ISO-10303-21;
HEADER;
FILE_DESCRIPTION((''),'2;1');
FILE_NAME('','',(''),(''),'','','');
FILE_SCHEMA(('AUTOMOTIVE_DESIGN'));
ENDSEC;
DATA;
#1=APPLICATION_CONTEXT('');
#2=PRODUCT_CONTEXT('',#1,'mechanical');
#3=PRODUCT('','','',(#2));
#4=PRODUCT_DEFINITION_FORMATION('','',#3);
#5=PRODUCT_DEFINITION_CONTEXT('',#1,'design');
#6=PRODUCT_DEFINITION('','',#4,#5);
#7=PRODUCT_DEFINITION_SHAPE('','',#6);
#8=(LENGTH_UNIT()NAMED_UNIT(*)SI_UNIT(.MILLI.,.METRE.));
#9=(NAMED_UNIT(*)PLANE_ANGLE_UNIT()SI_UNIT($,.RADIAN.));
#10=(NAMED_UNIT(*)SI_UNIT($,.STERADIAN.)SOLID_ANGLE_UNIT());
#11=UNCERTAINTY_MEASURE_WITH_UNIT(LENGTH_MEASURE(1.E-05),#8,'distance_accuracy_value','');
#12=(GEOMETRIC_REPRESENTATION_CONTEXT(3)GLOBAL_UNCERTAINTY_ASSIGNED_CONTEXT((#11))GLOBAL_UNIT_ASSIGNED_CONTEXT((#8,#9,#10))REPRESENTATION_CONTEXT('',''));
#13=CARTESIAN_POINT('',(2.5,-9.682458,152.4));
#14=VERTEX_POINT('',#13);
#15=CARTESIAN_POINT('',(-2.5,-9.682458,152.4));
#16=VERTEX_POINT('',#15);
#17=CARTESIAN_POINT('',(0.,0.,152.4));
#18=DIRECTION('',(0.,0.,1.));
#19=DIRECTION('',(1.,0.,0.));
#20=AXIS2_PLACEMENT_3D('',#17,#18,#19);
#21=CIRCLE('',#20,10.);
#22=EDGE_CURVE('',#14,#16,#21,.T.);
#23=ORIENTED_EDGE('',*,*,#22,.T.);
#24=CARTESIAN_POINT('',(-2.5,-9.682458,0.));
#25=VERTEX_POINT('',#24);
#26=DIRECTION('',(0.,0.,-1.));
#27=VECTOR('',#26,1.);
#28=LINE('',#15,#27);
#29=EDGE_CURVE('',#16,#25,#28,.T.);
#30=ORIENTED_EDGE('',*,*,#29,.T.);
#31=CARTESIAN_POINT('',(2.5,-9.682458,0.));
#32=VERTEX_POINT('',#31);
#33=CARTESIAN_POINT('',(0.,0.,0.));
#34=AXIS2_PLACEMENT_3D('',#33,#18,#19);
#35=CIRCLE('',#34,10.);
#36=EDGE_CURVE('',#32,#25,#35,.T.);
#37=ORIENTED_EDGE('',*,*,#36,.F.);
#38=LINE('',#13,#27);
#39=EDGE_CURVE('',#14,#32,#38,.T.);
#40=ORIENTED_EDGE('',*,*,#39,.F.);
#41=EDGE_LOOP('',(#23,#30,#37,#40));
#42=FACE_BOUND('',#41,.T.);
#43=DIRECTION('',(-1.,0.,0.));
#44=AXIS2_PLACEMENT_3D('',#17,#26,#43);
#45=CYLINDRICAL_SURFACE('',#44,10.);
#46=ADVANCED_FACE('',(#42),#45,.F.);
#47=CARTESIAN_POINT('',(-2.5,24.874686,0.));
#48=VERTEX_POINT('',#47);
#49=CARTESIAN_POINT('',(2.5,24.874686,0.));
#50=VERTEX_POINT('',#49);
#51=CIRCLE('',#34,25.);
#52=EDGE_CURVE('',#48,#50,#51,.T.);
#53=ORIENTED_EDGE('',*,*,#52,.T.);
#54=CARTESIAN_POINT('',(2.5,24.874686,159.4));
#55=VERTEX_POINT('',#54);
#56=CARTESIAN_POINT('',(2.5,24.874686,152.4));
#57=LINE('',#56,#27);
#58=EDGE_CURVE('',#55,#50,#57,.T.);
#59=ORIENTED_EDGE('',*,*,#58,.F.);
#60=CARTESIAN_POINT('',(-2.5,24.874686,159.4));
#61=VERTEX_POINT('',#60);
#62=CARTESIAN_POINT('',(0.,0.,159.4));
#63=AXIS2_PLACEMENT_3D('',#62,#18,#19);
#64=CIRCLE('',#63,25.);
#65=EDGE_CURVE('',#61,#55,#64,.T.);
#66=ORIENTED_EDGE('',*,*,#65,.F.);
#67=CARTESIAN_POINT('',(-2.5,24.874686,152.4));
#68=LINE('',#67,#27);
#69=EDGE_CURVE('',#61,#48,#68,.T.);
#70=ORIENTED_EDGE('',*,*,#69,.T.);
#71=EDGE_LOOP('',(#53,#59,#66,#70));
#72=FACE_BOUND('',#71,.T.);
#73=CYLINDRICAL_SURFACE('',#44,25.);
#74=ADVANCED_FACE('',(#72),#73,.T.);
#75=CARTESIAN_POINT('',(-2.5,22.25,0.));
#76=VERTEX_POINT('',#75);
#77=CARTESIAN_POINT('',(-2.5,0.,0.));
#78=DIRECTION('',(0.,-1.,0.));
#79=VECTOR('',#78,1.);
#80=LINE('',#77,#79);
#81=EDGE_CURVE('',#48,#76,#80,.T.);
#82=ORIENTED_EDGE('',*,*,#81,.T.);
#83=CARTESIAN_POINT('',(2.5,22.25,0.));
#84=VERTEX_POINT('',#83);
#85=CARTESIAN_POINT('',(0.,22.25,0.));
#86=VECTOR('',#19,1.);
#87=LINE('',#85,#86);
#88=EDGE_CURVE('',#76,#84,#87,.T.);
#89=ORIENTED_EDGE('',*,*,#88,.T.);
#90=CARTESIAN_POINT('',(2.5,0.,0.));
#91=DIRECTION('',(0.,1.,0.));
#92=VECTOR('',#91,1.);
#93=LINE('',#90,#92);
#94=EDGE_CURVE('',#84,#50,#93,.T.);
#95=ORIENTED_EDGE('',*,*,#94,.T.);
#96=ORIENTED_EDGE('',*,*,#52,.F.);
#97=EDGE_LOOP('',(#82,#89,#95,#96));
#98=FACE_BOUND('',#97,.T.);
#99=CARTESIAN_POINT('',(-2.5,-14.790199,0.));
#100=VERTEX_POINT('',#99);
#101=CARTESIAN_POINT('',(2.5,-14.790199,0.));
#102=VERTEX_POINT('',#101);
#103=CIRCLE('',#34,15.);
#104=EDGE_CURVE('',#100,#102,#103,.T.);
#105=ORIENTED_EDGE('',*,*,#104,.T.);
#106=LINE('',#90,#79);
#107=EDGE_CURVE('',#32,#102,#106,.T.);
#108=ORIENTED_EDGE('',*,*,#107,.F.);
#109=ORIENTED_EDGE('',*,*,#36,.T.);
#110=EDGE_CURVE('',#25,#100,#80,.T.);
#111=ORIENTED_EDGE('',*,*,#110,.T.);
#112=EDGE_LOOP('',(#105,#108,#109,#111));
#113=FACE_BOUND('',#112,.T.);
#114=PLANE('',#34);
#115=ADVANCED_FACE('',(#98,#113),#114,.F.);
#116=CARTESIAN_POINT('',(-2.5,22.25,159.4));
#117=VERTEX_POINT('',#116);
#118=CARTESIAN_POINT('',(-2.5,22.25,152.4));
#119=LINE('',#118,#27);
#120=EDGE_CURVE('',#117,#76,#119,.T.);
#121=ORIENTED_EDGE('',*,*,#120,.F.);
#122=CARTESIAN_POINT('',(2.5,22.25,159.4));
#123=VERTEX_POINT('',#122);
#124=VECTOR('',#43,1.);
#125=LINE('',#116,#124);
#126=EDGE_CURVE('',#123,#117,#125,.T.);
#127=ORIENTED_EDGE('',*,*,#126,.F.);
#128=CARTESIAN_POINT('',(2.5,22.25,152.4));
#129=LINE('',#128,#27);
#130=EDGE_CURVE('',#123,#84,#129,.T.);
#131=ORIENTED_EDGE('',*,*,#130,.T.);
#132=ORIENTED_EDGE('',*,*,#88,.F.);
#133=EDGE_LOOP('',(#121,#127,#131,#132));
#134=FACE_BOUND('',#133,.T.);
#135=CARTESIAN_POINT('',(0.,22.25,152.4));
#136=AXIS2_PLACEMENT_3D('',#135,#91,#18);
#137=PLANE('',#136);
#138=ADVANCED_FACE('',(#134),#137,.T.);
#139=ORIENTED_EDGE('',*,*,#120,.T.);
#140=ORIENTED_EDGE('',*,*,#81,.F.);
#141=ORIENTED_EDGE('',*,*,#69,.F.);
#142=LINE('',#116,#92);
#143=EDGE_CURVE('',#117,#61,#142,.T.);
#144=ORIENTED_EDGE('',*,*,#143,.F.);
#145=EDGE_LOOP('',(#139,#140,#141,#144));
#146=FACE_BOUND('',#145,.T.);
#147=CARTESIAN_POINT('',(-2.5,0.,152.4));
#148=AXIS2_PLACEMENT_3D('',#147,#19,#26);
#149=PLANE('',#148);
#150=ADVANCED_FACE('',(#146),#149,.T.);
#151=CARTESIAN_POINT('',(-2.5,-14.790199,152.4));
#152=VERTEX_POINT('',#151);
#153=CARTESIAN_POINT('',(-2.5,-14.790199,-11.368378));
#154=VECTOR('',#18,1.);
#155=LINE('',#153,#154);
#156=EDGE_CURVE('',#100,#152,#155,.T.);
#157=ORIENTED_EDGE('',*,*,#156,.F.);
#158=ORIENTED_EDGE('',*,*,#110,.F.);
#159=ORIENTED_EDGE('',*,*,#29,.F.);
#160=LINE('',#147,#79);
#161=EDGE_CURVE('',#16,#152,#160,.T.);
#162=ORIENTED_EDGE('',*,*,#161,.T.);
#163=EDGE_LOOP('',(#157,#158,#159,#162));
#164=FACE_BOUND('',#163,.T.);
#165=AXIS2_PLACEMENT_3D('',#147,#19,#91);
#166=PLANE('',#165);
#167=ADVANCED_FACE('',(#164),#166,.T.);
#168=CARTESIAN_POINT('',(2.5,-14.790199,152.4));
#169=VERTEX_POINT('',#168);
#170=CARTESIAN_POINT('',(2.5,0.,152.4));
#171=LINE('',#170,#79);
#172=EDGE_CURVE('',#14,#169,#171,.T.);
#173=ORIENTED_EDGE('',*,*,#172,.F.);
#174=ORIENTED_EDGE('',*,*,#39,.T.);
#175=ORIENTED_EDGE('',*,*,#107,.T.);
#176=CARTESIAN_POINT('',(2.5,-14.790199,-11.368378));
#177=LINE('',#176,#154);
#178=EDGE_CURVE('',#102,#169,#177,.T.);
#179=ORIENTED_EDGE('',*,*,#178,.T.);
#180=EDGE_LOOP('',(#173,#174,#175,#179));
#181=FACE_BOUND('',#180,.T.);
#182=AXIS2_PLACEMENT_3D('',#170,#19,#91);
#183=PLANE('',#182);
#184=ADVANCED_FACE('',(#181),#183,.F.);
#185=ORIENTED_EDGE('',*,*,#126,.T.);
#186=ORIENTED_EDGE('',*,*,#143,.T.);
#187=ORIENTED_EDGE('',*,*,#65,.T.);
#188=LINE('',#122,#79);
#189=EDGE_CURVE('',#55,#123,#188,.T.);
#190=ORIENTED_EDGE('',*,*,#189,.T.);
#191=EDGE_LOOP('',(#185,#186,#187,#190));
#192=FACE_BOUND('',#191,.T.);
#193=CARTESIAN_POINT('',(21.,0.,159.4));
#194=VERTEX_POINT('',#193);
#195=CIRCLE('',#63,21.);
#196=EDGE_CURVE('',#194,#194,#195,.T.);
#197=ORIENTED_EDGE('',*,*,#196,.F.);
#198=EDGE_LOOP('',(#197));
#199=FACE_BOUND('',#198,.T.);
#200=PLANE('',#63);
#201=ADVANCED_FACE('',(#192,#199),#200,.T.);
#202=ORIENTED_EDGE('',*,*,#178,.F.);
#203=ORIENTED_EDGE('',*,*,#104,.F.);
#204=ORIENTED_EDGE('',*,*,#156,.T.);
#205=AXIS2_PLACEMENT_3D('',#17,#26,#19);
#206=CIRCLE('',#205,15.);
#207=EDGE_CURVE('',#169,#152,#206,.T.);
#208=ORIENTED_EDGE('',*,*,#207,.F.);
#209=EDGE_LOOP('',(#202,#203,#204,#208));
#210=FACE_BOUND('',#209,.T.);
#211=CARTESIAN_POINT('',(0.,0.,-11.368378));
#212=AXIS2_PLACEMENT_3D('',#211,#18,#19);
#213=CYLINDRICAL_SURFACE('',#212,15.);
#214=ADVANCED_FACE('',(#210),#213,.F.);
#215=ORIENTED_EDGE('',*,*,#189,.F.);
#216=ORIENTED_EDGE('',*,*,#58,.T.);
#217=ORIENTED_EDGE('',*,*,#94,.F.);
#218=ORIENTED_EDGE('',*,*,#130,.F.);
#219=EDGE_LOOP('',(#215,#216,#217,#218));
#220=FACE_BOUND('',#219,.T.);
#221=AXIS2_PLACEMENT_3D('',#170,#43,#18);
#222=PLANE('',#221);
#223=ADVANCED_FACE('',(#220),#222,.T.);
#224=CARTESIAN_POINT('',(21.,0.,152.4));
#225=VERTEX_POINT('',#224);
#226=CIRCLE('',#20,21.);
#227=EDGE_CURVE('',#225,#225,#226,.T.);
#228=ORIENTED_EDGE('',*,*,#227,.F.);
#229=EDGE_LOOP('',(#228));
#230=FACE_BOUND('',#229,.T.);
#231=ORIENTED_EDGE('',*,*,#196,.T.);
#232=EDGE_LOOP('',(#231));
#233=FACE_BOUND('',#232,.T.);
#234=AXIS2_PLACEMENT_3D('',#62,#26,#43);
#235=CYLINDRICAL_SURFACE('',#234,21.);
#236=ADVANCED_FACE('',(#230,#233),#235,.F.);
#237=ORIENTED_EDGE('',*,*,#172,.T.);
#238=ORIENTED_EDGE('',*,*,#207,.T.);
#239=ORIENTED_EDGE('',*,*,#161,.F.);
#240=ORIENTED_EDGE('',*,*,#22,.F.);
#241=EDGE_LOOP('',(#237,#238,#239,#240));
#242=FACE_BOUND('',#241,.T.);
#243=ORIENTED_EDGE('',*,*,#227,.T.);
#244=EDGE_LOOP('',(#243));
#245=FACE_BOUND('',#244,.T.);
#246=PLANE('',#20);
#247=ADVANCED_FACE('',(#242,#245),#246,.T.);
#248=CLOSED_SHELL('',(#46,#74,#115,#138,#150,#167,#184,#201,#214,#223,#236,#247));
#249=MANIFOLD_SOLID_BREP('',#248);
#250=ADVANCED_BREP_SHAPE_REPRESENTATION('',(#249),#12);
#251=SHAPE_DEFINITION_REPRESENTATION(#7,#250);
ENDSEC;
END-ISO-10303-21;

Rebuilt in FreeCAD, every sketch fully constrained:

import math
import FreeCAD as App
import Part
import Sketcher

V = App.Vector

doc = App.newDocument("Part")
params = doc.addObject("Spreadsheet::Sheet", "Params")
for row, (alias, value) in enumerate([
    ("sketch1_radius", "25 mm"),
    ("sketch1_radius2", "10 mm"),
    ("sketch1_width", "5 mm"),
    ("pad1_length", "152.4 mm"),
    ("sketch2_diameter", "42 mm"),
    ("sketch2_radius", "25 mm"),
    ("sketch2_width", "5 mm"),
    ("pad2_length", "7 mm"),
    ("sketch3_radius", "25 mm"),
    ("sketch3_radius2", "15 mm"),
    ("pad3_length", "152.4 mm"),
], start=1):
    params.set(f"A{row}", alias)
    params.set(f"B{row}", "=" + value)
    params.setAlias(f"B{row}", alias)

body = doc.addObject("PartDesign::Body", "Body")

# Sketch on XY plane
sketch1 = body.newObject("Sketcher::SketchObject", "Sketch")
sketch1.AttachmentSupport = (doc.getObject("XY_Plane"), [""])
sketch1.MapMode = "FlatFace"
sketch1.addGeometry(Part.LineSegment(V(-2.5, 22.2, 0), V(-2.5, 24.9, 0)), False)
sketch1.addGeometry(Part.ArcOfCircle(Part.Circle(V(0, 0, 0), V(0, 0, 1), 25), math.radians(96), math.radians(264)), False)
sketch1.addGeometry(Part.LineSegment(V(-2.5, -24.9, 0), V(-2.5, -9.7, 0)), False)
sketch1.addGeometry(Part.ArcOfCircle(Part.Circle(V(0, 0, 0), V(0, 0, 1), 10), math.radians(-76), math.radians(256)), False)
sketch1.addGeometry(Part.LineSegment(V(2.5, -9.7, 0), V(2.5, -24.9, 0)), False)
sketch1.addGeometry(Part.ArcOfCircle(Part.Circle(V(0, 0, 0), V(0, 0, 1), 25), math.radians(-84), math.radians(84)), False)
sketch1.addGeometry(Part.LineSegment(V(2.5, 24.9, 0), V(2.5, 22.2, 0)), False)
sketch1.addGeometry(Part.LineSegment(V(2.5, 22.2, 0), V(-2.5, 22.2, 0)), False)
sketch1.addConstraint(Sketcher.Constraint("Coincident", 0, 2, 1, 1))
sketch1.addConstraint(Sketcher.Constraint("Coincident", 1, 2, 2, 1))
sketch1.addConstraint(Sketcher.Constraint("Coincident", 2, 2, 3, 2))
sketch1.addConstraint(Sketcher.Constraint("Coincident", 3, 1, 4, 1))
sketch1.addConstraint(Sketcher.Constraint("Coincident", 4, 2, 5, 1))
sketch1.addConstraint(Sketcher.Constraint("Coincident", 5, 2, 6, 1))
sketch1.addConstraint(Sketcher.Constraint("Coincident", 6, 2, 7, 1))
sketch1.addConstraint(Sketcher.Constraint("Coincident", 7, 2, 0, 1))
sketch1.addConstraint(Sketcher.Constraint("Vertical", 0))
sketch1.addConstraint(Sketcher.Constraint("Vertical", 2))
sketch1.addConstraint(Sketcher.Constraint("Vertical", 4))
sketch1.addConstraint(Sketcher.Constraint("Vertical", 6))
sketch1.addConstraint(Sketcher.Constraint("Horizontal", 7))
sketch1.addConstraint(Sketcher.Constraint("Coincident", 1, 3, -1, 1))
sketch1.addConstraint(Sketcher.Constraint("Coincident", 3, 3, -1, 1))
sketch1.addConstraint(Sketcher.Constraint("Coincident", 5, 3, -1, 1))
sketch1.addConstraint(Sketcher.Constraint("Equal", 1, 5))
sketch1.addConstraint(Sketcher.Constraint("Horizontal", 2, 2, 3, 1))
sketch1.addConstraint(Sketcher.Constraint("Horizontal", 0, 2, 5, 2))
sketch1.addConstraint(Sketcher.Constraint("Vertical", 0, 2, 1, 2))
sketch1.addConstraint(Sketcher.Constraint("Radius", 1, 25.0))
sketch1.addConstraint(Sketcher.Constraint("Radius", 3, 10.0))
sketch1.addConstraint(Sketcher.Constraint("DistanceX", 7, 2, 7, 1, 5.0))
sketch1.addConstraint(Sketcher.Constraint("DistanceY", -1, 1, 6, 2, 22.25))
sketch1.setExpression("Constraints[20]", "Params.sketch1_radius")
sketch1.setExpression("Constraints[21]", "Params.sketch1_radius2")
sketch1.setExpression("Constraints[22]", "Params.sketch1_width")
pad1 = body.newObject("PartDesign::Pad", "Pad")
pad1.Profile = sketch1
pad1.setExpression("Length", "Params.pad1_length")

# Sketch on XY plane
sketch2 = body.newObject("Sketcher::SketchObject", "Sketch001")
sketch2.AttachmentSupport = (doc.getObject("XY_Plane"), [""])
sketch2.MapMode = "FlatFace"
sketch2.AttachmentOffset = App.Placement(V(0, 0, 152.4), App.Rotation())
sketch2.addGeometry(Part.LineSegment(V(2.5, 22.2, 0), V(-2.5, 22.2, 0)), False)
sketch2.addGeometry(Part.LineSegment(V(-2.5, 22.2, 0), V(-2.5, 24.9, 0)), False)
sketch2.addGeometry(Part.ArcOfCircle(Part.Circle(V(0, 0, 0), V(0, 0, 1), 25), math.radians(96), math.radians(264)), False)
sketch2.addGeometry(Part.ArcOfCircle(Part.Circle(V(0, 0, 0), V(0, 0, 1), 25), math.radians(-96), math.radians(84)), False)
sketch2.addGeometry(Part.LineSegment(V(2.5, 24.9, 0), V(2.5, 22.2, 0)), False)
sketch2.addGeometry(Part.Circle(V(0, 0, 0), V(0, 0, 1), 21), False)
sketch2.addConstraint(Sketcher.Constraint("Coincident", 0, 2, 1, 1))
sketch2.addConstraint(Sketcher.Constraint("Coincident", 1, 2, 2, 1))
sketch2.addConstraint(Sketcher.Constraint("Tangent", 2, 2, 3, 1))
sketch2.addConstraint(Sketcher.Constraint("Coincident", 3, 2, 4, 1))
sketch2.addConstraint(Sketcher.Constraint("Coincident", 4, 2, 0, 1))
sketch2.addConstraint(Sketcher.Constraint("Horizontal", 0))
sketch2.addConstraint(Sketcher.Constraint("Vertical", 1))
sketch2.addConstraint(Sketcher.Constraint("Vertical", 4))
sketch2.addConstraint(Sketcher.Constraint("Coincident", 2, 3, -1, 1))
sketch2.addConstraint(Sketcher.Constraint("Coincident", 5, 3, -1, 1))
sketch2.addConstraint(Sketcher.Constraint("Equal", 2, 3))
sketch2.addConstraint(Sketcher.Constraint("Horizontal", 1, 2, 3, 2))
sketch2.addConstraint(Sketcher.Constraint("Vertical", 1, 2, 2, 2))
sketch2.addConstraint(Sketcher.Constraint("Diameter", 5, 42.0))
sketch2.addConstraint(Sketcher.Constraint("Radius", 2, 25.0))
sketch2.addConstraint(Sketcher.Constraint("DistanceX", 0, 2, 0, 1, 5.0))
sketch2.addConstraint(Sketcher.Constraint("DistanceY", -1, 1, 0, 2, 22.25))
sketch2.setExpression("Constraints[13]", "Params.sketch2_diameter")
sketch2.setExpression("Constraints[14]", "Params.sketch2_radius")
sketch2.setExpression("Constraints[15]", "Params.sketch2_width")
pad2 = body.newObject("PartDesign::Pad", "Pad001")
pad2.Profile = sketch2
pad2.setExpression("Length", "Params.pad2_length")

# Sketch on XY plane
sketch3 = body.newObject("Sketcher::SketchObject", "Sketch002")
sketch3.AttachmentSupport = (doc.getObject("XY_Plane"), [""])
sketch3.MapMode = "FlatFace"
sketch3.addGeometry(Part.LineSegment(V(-2, -15, 0), V(-2, -25, 0)), False)
sketch3.addGeometry(Part.ArcOfCircle(Part.Circle(V(0, 0, 0), V(0, 0, 1), 25), math.radians(-95.74), math.radians(-84.26)), False)
sketch3.addGeometry(Part.LineSegment(V(2, -25, 0), V(2, -15, 0)), False)
sketch3.addGeometry(Part.ArcOfCircle(Part.Circle(V(0, 0, 0), V(0, 0, 1), 15), math.radians(-99.59), math.radians(-80.41)), False)
sketch3.addConstraint(Sketcher.Constraint("Coincident", 0, 2, 1, 1))
sketch3.addConstraint(Sketcher.Constraint("Coincident", 1, 2, 2, 1))
sketch3.addConstraint(Sketcher.Constraint("Coincident", 2, 2, 3, 2))
sketch3.addConstraint(Sketcher.Constraint("Coincident", 3, 1, 0, 1))
sketch3.addConstraint(Sketcher.Constraint("Vertical", 0))
sketch3.addConstraint(Sketcher.Constraint("Vertical", 2))
sketch3.addConstraint(Sketcher.Constraint("Coincident", 1, 3, -1, 1))
sketch3.addConstraint(Sketcher.Constraint("Coincident", 3, 3, -1, 1))
sketch3.addConstraint(Sketcher.Constraint("Horizontal", 0, 2, 1, 2))
sketch3.addConstraint(Sketcher.Constraint("Radius", 1, 25.0))
sketch3.addConstraint(Sketcher.Constraint("Radius", 3, 15.0))
sketch3.addConstraint(Sketcher.Constraint("DistanceX", 0, 2, 1, 2, 5.0))
sketch3.setExpression("Constraints[9]", "Params.sketch3_radius")
sketch3.setExpression("Constraints[10]", "Params.sketch3_radius2")
pad3 = body.newObject("PartDesign::Pad", "Pad002")
pad3.Profile = sketch3
pad3.setExpression("Length", "Params.pad3_length")

doc.recompute()
